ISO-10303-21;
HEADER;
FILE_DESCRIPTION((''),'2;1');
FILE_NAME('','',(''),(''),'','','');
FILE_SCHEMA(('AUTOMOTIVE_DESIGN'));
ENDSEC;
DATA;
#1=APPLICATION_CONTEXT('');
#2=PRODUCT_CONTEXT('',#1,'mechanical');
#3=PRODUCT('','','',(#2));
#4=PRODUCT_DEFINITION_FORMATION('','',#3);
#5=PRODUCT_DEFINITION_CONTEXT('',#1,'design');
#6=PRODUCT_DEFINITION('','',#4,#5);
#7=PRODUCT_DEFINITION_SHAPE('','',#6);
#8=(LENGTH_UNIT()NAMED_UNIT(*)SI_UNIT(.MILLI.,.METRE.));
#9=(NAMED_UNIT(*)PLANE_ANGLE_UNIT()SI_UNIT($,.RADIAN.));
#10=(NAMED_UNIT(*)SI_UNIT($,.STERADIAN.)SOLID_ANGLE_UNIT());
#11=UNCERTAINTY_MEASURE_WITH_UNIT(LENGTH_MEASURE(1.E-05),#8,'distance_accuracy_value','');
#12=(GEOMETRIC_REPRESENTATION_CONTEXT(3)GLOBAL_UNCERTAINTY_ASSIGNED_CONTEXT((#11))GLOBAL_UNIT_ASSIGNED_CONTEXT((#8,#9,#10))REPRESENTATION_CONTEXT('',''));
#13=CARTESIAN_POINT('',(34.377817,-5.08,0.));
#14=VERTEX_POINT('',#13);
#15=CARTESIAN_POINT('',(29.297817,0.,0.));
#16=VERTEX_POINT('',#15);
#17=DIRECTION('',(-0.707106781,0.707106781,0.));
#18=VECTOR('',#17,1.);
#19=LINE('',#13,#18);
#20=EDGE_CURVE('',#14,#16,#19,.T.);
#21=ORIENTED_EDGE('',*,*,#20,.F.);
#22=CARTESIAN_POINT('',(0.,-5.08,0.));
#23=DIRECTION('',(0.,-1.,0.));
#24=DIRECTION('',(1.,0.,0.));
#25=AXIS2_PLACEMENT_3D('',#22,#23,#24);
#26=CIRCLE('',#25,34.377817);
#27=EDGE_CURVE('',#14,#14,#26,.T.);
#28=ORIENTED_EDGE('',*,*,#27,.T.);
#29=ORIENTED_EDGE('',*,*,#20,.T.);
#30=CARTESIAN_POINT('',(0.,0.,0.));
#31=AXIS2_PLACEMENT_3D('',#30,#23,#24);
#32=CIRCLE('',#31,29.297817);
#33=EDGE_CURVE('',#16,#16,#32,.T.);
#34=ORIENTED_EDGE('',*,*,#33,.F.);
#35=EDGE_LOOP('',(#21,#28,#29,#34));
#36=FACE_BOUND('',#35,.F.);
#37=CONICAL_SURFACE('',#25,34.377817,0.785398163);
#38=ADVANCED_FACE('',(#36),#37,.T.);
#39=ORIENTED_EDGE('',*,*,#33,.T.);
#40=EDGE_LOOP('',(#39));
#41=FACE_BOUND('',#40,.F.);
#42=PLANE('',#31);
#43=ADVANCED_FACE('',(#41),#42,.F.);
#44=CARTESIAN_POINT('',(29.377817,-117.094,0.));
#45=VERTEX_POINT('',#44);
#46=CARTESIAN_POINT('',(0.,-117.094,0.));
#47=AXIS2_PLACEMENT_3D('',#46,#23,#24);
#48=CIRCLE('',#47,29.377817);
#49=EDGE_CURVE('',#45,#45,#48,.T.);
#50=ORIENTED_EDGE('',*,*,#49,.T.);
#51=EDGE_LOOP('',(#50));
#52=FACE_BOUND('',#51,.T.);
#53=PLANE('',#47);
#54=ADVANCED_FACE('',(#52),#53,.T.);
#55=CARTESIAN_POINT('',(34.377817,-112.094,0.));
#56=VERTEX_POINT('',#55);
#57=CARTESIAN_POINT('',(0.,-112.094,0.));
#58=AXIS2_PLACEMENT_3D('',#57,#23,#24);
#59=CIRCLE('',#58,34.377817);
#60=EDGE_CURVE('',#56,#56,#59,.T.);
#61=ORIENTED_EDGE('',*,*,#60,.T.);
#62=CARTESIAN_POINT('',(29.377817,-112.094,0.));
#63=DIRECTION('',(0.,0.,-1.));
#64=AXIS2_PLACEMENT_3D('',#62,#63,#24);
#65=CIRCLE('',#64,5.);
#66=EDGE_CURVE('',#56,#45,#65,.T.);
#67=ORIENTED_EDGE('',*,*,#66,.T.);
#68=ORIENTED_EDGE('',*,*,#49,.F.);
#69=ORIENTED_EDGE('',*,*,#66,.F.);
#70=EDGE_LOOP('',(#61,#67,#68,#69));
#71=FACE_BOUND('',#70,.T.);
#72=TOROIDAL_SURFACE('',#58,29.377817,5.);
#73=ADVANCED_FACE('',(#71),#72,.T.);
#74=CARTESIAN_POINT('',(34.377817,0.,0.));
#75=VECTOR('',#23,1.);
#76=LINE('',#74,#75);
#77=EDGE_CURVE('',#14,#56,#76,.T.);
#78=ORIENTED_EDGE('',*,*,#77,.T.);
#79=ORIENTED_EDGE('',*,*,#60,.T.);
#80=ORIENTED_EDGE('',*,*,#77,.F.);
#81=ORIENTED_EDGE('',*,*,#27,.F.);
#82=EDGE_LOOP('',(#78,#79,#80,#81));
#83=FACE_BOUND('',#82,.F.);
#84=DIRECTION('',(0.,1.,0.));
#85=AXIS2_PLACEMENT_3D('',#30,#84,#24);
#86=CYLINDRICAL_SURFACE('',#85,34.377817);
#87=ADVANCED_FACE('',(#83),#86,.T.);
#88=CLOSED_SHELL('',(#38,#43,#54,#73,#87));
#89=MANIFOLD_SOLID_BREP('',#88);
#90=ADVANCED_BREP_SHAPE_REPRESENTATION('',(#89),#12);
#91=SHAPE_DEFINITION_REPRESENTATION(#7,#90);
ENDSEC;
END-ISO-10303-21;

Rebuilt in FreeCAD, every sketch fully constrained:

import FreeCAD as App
import Part
import Sketcher
from FreeCAD import Vector
Q = App.Units.Quantity


def edges_at(feature, points):
    """Names of the edges that pass closest to the given points."""
    edges = feature.Shape.Edges
    near = lambda p: min(range(len(edges)), key=lambda i: edges[i].distToShape(Part.Vertex(*p))[0])
    return sorted({f"Edge{near(p) + 1}" for p in points})

doc = App.newDocument("Part")
body = doc.addObject("PartDesign::Body", "Body")

sketch1 = body.newObject("Sketcher::SketchObject", "Sketch")
sketch1.AttachmentSupport = (doc.getObject("XZ_Plane"), [""])
sketch1.MapMode = "FlatFace"
sketch1.addGeometry(Part.Circle(Vector(0, 0, 0), Vector(0, 0, 1), 34), False)
sketch1.addConstraint([
    Sketcher.Constraint("Coincident", 0, 3, -1, 1),
    Sketcher.Constraint("Diameter", 0, Q("68.755634 mm")),
])
pad1 = body.newObject("PartDesign::Pad", "Pad")
pad1.Profile = sketch1
pad1.Length = Q("4.61 in")
doc.recompute()

chamfer = body.newObject("PartDesign::Chamfer", "Chamfer")
chamfer.Base = (pad1, edges_at(pad1, [(-34.378, 0, 0)]))
chamfer.Size = Q("0.2 in")
doc.recompute()

fillet = body.newObject("PartDesign::Fillet", "Fillet")
fillet.Base = (chamfer, edges_at(chamfer, [(-34.378, -117.094, 0)]))
fillet.Radius = 5

doc.recompute()
